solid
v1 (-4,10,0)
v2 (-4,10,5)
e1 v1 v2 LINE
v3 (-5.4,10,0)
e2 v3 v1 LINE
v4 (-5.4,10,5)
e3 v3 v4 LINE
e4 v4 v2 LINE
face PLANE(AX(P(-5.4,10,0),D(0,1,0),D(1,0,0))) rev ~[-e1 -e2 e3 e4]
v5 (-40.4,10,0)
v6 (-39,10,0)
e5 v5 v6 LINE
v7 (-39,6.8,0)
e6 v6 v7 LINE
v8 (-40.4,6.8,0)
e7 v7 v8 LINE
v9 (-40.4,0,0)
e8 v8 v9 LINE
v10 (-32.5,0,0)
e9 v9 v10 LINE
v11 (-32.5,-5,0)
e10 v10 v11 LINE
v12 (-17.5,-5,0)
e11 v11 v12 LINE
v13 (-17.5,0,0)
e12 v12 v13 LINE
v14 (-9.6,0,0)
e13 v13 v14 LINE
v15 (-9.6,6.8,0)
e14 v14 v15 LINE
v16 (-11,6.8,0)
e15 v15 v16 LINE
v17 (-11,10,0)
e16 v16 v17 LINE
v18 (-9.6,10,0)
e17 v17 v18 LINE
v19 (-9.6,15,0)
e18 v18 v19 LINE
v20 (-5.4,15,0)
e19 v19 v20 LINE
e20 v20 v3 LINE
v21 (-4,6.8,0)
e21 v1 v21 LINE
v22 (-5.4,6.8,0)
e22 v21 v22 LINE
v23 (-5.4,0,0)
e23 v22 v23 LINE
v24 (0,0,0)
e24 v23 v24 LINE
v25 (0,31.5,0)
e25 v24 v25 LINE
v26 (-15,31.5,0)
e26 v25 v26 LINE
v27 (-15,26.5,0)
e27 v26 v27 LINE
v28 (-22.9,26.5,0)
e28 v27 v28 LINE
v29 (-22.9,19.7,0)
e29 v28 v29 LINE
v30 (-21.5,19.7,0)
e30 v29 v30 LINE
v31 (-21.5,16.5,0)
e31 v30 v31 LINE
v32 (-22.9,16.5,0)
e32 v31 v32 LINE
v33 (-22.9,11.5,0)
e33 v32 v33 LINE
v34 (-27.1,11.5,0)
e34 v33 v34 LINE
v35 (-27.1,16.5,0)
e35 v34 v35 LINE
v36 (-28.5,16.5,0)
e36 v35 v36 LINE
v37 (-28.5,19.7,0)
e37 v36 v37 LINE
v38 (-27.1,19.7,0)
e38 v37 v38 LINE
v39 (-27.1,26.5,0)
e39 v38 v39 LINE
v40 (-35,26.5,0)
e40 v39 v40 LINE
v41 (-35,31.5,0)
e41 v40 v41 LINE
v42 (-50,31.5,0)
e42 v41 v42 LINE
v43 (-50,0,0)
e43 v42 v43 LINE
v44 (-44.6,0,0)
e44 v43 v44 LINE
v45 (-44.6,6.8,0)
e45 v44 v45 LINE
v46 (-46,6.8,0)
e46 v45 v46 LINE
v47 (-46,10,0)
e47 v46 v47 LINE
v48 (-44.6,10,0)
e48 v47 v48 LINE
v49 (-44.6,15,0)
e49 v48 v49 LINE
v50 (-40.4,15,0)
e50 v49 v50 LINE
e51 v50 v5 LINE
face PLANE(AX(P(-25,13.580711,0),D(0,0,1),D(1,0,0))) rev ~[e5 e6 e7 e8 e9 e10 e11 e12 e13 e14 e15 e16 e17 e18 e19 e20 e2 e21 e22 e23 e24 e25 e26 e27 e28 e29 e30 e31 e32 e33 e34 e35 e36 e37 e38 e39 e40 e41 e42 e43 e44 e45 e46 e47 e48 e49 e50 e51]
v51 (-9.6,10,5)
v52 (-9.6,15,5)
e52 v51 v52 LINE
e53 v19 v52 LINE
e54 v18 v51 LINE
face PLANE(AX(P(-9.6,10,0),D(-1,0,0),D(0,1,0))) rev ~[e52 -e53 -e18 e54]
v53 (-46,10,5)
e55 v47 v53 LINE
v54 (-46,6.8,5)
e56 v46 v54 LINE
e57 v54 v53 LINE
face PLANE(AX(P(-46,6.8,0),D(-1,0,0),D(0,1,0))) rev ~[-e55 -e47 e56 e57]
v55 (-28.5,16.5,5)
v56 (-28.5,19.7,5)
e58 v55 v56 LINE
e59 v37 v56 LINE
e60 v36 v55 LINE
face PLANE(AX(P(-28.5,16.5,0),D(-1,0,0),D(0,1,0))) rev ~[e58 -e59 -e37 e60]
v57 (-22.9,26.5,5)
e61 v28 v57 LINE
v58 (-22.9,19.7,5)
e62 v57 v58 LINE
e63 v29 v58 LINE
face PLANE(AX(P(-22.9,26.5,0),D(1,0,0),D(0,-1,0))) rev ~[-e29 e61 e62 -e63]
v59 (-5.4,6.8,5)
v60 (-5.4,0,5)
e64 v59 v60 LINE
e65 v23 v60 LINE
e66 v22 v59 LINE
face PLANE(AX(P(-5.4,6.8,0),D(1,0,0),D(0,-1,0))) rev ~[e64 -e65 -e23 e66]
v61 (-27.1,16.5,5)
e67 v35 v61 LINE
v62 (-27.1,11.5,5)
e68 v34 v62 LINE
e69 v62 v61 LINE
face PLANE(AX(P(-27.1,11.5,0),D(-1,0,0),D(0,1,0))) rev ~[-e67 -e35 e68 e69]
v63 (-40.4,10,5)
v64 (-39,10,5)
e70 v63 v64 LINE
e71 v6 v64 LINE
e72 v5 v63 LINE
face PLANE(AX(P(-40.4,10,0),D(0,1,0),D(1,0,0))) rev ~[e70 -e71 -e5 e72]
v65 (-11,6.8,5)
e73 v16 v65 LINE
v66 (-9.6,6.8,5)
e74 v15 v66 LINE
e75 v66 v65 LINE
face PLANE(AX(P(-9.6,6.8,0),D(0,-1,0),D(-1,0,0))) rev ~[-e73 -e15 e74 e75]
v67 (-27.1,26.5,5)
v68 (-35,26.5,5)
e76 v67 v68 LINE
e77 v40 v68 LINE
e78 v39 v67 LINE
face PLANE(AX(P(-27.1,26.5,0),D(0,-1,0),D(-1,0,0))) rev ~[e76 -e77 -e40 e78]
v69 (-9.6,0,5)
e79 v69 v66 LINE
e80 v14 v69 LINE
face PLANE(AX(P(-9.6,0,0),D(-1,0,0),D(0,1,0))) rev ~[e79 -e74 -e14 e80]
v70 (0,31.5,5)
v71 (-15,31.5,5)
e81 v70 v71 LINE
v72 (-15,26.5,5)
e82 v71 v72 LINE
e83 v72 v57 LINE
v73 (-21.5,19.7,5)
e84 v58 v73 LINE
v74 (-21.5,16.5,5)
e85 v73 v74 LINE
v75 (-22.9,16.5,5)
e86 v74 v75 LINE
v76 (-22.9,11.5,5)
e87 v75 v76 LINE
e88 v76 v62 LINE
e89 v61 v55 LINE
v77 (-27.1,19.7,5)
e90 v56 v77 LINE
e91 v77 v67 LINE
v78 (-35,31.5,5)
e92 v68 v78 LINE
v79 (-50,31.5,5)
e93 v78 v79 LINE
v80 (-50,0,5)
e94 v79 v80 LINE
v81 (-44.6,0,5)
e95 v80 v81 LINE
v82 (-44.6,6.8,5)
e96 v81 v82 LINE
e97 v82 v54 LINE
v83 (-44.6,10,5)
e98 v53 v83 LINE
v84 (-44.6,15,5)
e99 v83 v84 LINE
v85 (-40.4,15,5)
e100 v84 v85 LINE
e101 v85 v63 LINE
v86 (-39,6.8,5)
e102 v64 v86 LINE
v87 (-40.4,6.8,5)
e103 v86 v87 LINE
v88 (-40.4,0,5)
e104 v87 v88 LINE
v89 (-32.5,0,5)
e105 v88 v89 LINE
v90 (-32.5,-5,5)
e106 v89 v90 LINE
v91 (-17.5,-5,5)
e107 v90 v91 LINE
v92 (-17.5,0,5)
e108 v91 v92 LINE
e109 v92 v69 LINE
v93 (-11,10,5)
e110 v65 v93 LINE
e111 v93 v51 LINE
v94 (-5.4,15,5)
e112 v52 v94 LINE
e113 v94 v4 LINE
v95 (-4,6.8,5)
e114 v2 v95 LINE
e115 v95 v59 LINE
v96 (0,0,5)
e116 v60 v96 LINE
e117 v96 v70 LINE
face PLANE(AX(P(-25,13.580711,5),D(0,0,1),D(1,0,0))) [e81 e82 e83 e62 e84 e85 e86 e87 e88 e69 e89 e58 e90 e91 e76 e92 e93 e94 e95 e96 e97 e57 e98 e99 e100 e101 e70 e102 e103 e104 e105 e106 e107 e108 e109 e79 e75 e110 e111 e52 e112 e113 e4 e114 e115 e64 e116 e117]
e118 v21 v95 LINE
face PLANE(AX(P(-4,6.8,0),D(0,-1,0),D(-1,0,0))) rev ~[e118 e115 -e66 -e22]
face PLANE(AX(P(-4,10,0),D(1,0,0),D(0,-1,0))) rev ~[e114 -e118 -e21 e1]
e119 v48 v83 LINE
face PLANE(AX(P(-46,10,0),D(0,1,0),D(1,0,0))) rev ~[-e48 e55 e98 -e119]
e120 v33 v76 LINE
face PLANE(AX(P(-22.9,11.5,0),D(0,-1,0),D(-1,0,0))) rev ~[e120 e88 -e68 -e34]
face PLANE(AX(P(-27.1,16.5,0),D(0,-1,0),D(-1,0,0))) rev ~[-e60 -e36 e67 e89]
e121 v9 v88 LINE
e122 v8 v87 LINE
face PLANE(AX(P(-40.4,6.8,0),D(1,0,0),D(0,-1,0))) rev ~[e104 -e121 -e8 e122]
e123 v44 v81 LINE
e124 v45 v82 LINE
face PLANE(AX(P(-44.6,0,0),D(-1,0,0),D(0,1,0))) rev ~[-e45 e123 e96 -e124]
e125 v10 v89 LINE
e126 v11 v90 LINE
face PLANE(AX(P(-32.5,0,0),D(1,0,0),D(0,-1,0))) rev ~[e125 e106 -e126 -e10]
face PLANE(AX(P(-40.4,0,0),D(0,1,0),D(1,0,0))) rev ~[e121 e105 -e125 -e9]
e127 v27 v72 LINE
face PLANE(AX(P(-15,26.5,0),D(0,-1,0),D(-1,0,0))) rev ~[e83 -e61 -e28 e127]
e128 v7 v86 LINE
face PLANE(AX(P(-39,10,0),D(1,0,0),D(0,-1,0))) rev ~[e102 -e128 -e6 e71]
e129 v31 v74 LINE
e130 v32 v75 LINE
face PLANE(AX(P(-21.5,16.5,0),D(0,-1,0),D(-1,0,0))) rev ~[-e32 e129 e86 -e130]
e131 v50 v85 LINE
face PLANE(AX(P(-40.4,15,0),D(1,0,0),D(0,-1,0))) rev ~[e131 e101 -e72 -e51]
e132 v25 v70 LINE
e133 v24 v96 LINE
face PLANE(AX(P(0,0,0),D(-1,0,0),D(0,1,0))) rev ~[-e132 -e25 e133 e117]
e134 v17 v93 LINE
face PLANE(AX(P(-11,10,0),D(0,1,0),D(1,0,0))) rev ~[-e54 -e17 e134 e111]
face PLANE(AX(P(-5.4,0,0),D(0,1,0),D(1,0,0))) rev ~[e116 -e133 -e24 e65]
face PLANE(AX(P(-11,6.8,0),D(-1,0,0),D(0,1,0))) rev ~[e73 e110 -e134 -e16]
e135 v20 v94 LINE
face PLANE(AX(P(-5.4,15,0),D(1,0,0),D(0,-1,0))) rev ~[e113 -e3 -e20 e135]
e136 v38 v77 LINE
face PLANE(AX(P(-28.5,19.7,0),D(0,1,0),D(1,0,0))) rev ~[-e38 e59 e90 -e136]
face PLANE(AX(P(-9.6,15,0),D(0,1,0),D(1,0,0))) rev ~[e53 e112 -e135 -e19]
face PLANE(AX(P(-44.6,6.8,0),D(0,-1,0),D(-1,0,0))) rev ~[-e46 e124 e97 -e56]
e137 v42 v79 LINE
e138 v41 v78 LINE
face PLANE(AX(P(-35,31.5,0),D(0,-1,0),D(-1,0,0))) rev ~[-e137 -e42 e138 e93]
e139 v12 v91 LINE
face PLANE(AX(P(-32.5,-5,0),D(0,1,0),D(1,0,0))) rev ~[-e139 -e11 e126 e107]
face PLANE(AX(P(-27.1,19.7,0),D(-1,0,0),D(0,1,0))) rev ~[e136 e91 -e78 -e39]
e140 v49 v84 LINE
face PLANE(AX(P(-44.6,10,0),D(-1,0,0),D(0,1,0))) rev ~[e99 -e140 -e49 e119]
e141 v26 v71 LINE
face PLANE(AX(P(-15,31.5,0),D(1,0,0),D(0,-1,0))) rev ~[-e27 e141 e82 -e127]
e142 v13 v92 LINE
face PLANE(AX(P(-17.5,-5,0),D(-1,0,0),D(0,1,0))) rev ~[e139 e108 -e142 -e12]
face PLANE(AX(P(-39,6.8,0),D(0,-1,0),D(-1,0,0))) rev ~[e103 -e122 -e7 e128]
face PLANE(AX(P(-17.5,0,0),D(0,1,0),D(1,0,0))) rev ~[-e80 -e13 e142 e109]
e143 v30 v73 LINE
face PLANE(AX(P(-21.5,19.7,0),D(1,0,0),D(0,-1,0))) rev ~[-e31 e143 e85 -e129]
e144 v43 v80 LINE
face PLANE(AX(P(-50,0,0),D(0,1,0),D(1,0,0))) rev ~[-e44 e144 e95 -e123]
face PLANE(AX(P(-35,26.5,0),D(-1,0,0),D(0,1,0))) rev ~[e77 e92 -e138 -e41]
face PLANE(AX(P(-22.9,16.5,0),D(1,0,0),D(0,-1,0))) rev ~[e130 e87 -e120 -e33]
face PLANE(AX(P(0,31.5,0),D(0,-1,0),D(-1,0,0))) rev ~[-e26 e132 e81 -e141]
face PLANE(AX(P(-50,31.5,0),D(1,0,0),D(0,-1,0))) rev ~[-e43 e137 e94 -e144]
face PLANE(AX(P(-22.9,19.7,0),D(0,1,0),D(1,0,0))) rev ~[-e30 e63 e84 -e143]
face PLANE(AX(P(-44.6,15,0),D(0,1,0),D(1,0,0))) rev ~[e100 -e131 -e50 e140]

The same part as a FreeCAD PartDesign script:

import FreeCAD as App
import Part
import Sketcher
from FreeCAD import Vector


def add_polygon(sketch, points):
    """Adds a closed chain of lines whose ends are joined by coincident constraints."""
    first, n = sketch.GeometryCount, len(points)
    for a, b in zip(points, points[1:] + points[:1]):
        sketch.addGeometry(Part.LineSegment(App.Vector(*a, 0), App.Vector(*b, 0)), False)
    for i in range(n):
        sketch.addConstraint(Sketcher.Constraint("Coincident", first + i, 2, first + (i + 1) % n, 1))

doc = App.newDocument("Part")
body = doc.addObject("PartDesign::Body", "Body")

# Sketch on XY plane
sketch1 = body.newObject("Sketcher::SketchObject", "Sketch")
sketch1.AttachmentSupport = (doc.getObject("XY_Plane"), [""])
sketch1.MapMode = "FlatFace"
add_polygon(sketch1, [(-5.4, 0), (0, 0), (0, 31.5), (-15, 31.5), (-15, 26.5), (-22.9, 26.5), (-22.9, 19.7), (-21.5, 19.7), (-21.5, 16.5), (-22.9, 16.5), (-22.9, 11.5), (-27.1, 11.5), (-27.1, 16.5), (-28.5, 16.5), (-28.5, 19.7), (-27.1, 19.7), (-27.1, 26.5), (-35, 26.5), (-35, 31.5), (-50, 31.5), (-50, 0), (-44.6, 0), (-44.6, 6.8), (-46, 6.8), (-46, 10), (-44.6, 10), (-44.6, 15), (-40.4, 15), (-40.4, 10), (-39, 10), (-39, 6.8), (-40.4, 6.8), (-40.4, 0), (-32.5, 0), (-32.5, -5), (-17.5, -5), (-17.5, 0), (-9.6, 0), (-9.6, 6.8), (-11, 6.8), (-11, 10), (-9.6, 10), (-9.6, 15), (-5.4, 15), (-5.4, 10), (-4, 10), (-4, 6.8), (-5.4, 6.8)])  # lines 0-47
sketch1.addConstraint(Sketcher.Constraint("Horizontal", 0))
sketch1.addConstraint(Sketcher.Constraint("Vertical", 1))
sketch1.addConstraint(Sketcher.Constraint("Horizontal", 2))
sketch1.addConstraint(Sketcher.Constraint("Vertical", 3))
sketch1.addConstraint(Sketcher.Constraint("Horizontal", 4))
sketch1.addConstraint(Sketcher.Constraint("Vertical", 5))
sketch1.addConstraint(Sketcher.Constraint("Horizontal", 6))
sketch1.addConstraint(Sketcher.Constraint("Vertical", 7))
sketch1.addConstraint(Sketcher.Constraint("Horizontal", 8))
sketch1.addConstraint(Sketcher.Constraint("Vertical", 9))
sketch1.addConstraint(Sketcher.Constraint("Horizontal", 10))
sketch1.addConstraint(Sketcher.Constraint("Vertical", 11))
sketch1.addConstraint(Sketcher.Constraint("Horizontal", 12))
sketch1.addConstraint(Sketcher.Constraint("Vertical", 13))
sketch1.addConstraint(Sketcher.Constraint("Horizontal", 14))
sketch1.addConstraint(Sketcher.Constraint("Vertical", 15))
sketch1.addConstraint(Sketcher.Constraint("Horizontal", 16))
sketch1.addConstraint(Sketcher.Constraint("Vertical", 17))
sketch1.addConstraint(Sketcher.Constraint("Horizontal", 18))
sketch1.addConstraint(Sketcher.Constraint("Vertical", 19))
sketch1.addConstraint(Sketcher.Constraint("Horizontal", 20))
sketch1.addConstraint(Sketcher.Constraint("Vertical", 21))
sketch1.addConstraint(Sketcher.Constraint("Horizontal", 22))
sketch1.addConstraint(Sketcher.Constraint("Vertical", 23))
sketch1.addConstraint(Sketcher.Constraint("Horizontal", 24))
sketch1.addConstraint(Sketcher.Constraint("Vertical", 25))
sketch1.addConstraint(Sketcher.Constraint("Horizontal", 26))
sketch1.addConstraint(Sketcher.Constraint("Vertical", 27))
sketch1.addConstraint(Sketcher.Constraint("Horizontal", 28))
sketch1.addConstraint(Sketcher.Constraint("Vertical", 29))
sketch1.addConstraint(Sketcher.Constraint("Horizontal", 30))
sketch1.addConstraint(Sketcher.Constraint("Vertical", 31))
sketch1.addConstraint(Sketcher.Constraint("Horizontal", 32))
sketch1.addConstraint(Sketcher.Constraint("Vertical", 33))
sketch1.addConstraint(Sketcher.Constraint("Horizontal", 34))
sketch1.addConstraint(Sketcher.Constraint("Vertical", 35))
sketch1.addConstraint(Sketcher.Constraint("Horizontal", 36))
sketch1.addConstraint(Sketcher.Constraint("Vertical", 37))
sketch1.addConstraint(Sketcher.Constraint("Horizontal", 38))
sketch1.addConstraint(Sketcher.Constraint("Vertical", 39))
sketch1.addConstraint(Sketcher.Constraint("Horizontal", 40))
sketch1.addConstraint(Sketcher.Constraint("Vertical", 41))
sketch1.addConstraint(Sketcher.Constraint("Horizontal", 42))
sketch1.addConstraint(Sketcher.Constraint("Vertical", 43))
sketch1.addConstraint(Sketcher.Constraint("Horizontal", 44))
sketch1.addConstraint(Sketcher.Constraint("Vertical", 45))
sketch1.addConstraint(Sketcher.Constraint("Horizontal", 46))
sketch1.addConstraint(Sketcher.Constraint("Vertical", 47))
sketch1.addConstraint(Sketcher.Constraint("Coincident", 0, 2, -1, 1))
sketch1.addConstraint(Sketcher.Constraint("PointOnObject", 19, 2, -1))
sketch1.addConstraint(Sketcher.Constraint("PointOnObject", 31, 2, -1))
sketch1.addConstraint(Sketcher.Constraint("PointOnObject", 35, 2, -1))
sketch1.addConstraint(Sketcher.Constraint("Horizontal", 8, 2, 11, 2))
sketch1.addConstraint(Sketcher.Constraint("Horizontal", 6, 2, 13, 2))
sketch1.addConstraint(Sketcher.Constraint("Horizontal", 4, 2, 15, 2))
sketch1.addConstraint(Sketcher.Constraint("Horizontal", 2, 2, 17, 2))
sketch1.addConstraint(Sketcher.Constraint("Horizontal", 24, 2, 27, 2))
sketch1.addConstraint(Sketcher.Constraint("Horizontal", 22, 2, 29, 2))
sketch1.addConstraint(Sketcher.Constraint("Horizontal", 30, 2, 37, 2))
sketch1.addConstraint(Sketcher.Constraint("Horizontal", 28, 2, 39, 2))
sketch1.addConstraint(Sketcher.Constraint("Horizontal", 26, 2, 41, 2))
sketch1.addConstraint(Sketcher.Constraint("Horizontal", 40, 2, 43, 2))
sketch1.addConstraint(Sketcher.Constraint("Horizontal", 38, 2, 45, 2))
sketch1.addConstraint(Sketcher.Constraint("Vertical", 5, 2, 8, 2))
sketch1.addConstraint(Sketcher.Constraint("Vertical", 11, 2, 14, 2))
sketch1.addConstraint(Sketcher.Constraint("Vertical", 21, 2, 24, 2))
sketch1.addConstraint(Sketcher.Constraint("Vertical", 27, 2, 30, 2))
sketch1.addConstraint(Sketcher.Constraint("Vertical", 37, 2, 40, 2))
sketch1.addConstraint(Sketcher.Constraint("Vertical", 43, 2, 46, 2))
sketch1.addConstraint(Sketcher.Constraint("Equal", 8, 12))
sketch1.addConstraint(Sketcher.Constraint("Equal", 4, 16))
sketch1.addConstraint(Sketcher.Constraint("Equal", 2, 18))
sketch1.addConstraint(Sketcher.Constraint("Equal", 0, 20))
sketch1.addConstraint(Sketcher.Constraint("Equal", 14, 22))
sketch1.addConstraint(Sketcher.Constraint("Equal", 10, 26))
sketch1.addConstraint(Sketcher.Constraint("Equal", 24, 28))
sketch1.addConstraint(Sketcher.Constraint("Equal", 16, 32))
sketch1.addConstraint(Sketcher.Constraint("Equal", 18, 34))
sketch1.addConstraint(Sketcher.Constraint("Equal", 32, 36))
sketch1.addConstraint(Sketcher.Constraint("Equal", 30, 38))
sketch1.addConstraint(Sketcher.Constraint("Equal", 26, 42))
sketch1.addConstraint(Sketcher.Constraint("Equal", 40, 44))
sketch1.addConstraint(Sketcher.Constraint("Equal", 3, 9))
sketch1.addConstraint(Sketcher.Constraint("Equal", 15, 21))
sketch1.addConstraint(Sketcher.Constraint("Equal", 13, 23))
sketch1.addConstraint(Sketcher.Constraint("Equal", 17, 25))
sketch1.addConstraint(Sketcher.Constraint("Equal", 27, 33))
sketch1.addConstraint(Sketcher.Constraint("DistanceX", 2, 2, 2, 1, 15.0))
sketch1.addConstraint(Sketcher.Constraint("DistanceY", 3, 2, 3, 1, 5.0))
sketch1.addConstraint(Sketcher.Constraint("DistanceX", 0, 1, 0, 2, 5.4))
sketch1.addConstraint(Sketcher.Constraint("DistanceX", 4, 2, 4, 1, 7.9))
sketch1.addConstraint(Sketcher.Constraint("DistanceX", 6, 1, 6, 2, 1.4))
sketch1.addConstraint(Sketcher.Constraint("DistanceY", 1, 1, 1, 2, 31.5))
sketch1.addConstraint(Sketcher.Constraint("DistanceY", 5, 2, 5, 1, 6.8))
sketch1.addConstraint(Sketcher.Constraint("DistanceY", 7, 2, 7, 1, 3.2))
pad1 = body.newObject("PartDesign::Pad", "Pad")
pad1.Profile = sketch1
pad1.Length = 5

doc.recompute()
